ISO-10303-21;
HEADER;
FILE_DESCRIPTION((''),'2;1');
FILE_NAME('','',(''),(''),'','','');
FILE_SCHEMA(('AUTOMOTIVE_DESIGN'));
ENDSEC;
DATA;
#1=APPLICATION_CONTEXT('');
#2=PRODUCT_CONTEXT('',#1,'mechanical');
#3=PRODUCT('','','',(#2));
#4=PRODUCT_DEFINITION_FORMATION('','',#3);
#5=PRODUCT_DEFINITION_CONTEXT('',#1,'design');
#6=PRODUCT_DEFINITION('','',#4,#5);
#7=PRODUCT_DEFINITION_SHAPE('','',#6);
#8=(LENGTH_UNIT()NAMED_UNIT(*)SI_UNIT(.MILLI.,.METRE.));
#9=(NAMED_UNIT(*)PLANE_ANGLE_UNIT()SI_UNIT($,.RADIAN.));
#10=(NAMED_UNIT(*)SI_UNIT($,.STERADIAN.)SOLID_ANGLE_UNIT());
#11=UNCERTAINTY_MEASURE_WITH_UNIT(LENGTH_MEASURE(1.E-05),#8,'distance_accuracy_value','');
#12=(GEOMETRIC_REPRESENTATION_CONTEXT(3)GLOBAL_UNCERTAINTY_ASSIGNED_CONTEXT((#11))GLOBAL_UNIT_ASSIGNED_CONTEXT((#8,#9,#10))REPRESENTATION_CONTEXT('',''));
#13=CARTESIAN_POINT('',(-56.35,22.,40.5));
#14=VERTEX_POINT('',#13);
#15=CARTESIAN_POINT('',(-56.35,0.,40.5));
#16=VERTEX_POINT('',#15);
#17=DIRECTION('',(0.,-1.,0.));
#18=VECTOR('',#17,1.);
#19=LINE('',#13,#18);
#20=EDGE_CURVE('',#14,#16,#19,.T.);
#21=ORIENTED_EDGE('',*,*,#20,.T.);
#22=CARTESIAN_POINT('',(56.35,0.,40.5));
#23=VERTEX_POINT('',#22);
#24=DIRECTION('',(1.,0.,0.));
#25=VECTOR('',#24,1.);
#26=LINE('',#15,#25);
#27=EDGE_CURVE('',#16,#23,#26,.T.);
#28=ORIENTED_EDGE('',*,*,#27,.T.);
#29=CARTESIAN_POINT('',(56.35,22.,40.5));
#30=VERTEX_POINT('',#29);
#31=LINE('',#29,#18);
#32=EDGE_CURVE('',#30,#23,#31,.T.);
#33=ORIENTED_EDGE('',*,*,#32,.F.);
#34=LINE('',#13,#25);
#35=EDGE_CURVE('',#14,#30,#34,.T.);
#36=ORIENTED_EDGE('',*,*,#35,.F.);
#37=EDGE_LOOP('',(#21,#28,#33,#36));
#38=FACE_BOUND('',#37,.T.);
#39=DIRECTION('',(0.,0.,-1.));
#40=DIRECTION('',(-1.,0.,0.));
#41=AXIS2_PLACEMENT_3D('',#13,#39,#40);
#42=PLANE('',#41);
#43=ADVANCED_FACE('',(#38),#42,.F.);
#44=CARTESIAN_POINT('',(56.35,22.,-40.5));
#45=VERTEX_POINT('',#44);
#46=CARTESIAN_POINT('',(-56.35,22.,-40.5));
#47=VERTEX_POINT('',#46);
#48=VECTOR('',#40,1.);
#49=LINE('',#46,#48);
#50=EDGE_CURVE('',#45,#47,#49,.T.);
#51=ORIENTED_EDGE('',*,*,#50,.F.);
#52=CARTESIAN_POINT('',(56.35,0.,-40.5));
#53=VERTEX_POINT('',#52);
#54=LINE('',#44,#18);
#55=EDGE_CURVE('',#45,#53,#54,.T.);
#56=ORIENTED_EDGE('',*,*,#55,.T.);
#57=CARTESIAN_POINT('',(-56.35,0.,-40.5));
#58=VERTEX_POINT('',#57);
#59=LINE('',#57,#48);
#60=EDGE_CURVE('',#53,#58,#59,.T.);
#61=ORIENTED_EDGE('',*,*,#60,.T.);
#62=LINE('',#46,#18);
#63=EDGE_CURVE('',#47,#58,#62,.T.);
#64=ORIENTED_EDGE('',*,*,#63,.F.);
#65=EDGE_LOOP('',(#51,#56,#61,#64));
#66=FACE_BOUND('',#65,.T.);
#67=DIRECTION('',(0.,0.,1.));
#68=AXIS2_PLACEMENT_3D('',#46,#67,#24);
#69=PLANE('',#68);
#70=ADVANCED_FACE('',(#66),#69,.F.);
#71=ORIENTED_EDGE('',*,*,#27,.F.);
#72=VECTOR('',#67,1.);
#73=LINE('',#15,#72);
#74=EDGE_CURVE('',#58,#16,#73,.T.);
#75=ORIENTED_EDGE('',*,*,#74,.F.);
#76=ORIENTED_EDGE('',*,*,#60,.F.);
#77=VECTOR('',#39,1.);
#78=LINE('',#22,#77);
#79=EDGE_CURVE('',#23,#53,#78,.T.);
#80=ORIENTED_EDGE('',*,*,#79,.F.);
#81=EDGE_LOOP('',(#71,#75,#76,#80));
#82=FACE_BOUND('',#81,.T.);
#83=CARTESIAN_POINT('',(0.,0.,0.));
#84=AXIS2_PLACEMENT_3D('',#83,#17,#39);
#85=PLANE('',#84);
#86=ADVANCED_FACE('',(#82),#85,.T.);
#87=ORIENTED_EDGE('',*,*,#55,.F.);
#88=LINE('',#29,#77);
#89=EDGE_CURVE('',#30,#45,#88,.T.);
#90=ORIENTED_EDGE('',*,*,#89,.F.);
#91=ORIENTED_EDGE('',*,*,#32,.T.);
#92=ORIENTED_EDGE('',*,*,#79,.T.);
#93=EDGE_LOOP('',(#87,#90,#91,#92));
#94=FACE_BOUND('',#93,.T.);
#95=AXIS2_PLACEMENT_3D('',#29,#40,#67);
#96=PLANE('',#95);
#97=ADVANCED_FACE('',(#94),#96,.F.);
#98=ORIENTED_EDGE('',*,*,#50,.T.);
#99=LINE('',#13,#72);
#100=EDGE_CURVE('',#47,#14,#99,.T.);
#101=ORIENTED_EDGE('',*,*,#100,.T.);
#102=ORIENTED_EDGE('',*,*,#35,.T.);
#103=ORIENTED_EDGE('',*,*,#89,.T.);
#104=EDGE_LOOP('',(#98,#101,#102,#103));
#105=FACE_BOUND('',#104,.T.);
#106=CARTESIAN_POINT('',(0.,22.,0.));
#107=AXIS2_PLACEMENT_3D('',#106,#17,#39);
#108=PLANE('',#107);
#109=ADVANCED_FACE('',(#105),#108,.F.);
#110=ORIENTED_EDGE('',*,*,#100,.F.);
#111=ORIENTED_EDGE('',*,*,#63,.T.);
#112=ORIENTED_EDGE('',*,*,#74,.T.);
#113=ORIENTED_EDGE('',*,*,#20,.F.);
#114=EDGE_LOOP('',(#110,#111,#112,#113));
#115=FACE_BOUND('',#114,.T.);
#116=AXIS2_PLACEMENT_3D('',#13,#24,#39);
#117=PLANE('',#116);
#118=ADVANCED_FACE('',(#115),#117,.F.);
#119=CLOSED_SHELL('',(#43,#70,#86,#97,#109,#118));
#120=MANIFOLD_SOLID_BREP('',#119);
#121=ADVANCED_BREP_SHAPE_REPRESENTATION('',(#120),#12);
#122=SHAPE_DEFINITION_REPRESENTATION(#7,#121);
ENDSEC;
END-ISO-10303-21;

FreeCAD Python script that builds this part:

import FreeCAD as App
import Part
import Sketcher

V = App.Vector
Q = App.Units.Quantity

doc = App.newDocument("Part")
body = doc.addObject("PartDesign::Body", "Body")

# Sketch on XZ plane
sketch1 = doc.addObject("Sketcher::SketchObject", "Sketch")
body.addObject(sketch1)
sketch1.AttachmentSupport = (doc.XZ_Plane, [""])
sketch1.MapMode = "FlatFace"
sketch1.addGeometry([
    Part.LineSegment(V(-56.35, -40.5, 0), V(-56.35, 40.5, 0)),
    Part.LineSegment(V(-56.35, 40.5, 0), V(56.35, 40.5, 0)),
    Part.LineSegment(V(56.35, 40.5, 0), V(56.35, -40.5, 0)),
    Part.LineSegment(V(56.35, -40.5, 0), V(-56.35, -40.5, 0)),
], False)
sketch1.addConstraint([
    Sketcher.Constraint("Coincident", 0, 2, 1, 1),
    Sketcher.Constraint("Coincident", 1, 2, 2, 1),
    Sketcher.Constraint("Coincident", 2, 2, 3, 1),
    Sketcher.Constraint("Coincident", 3, 2, 0, 1),
    Sketcher.Constraint("Vertical", 0),
    Sketcher.Constraint("Horizontal", 1),
    Sketcher.Constraint("Vertical", 2),
    Sketcher.Constraint("Horizontal", 3),
    Sketcher.Constraint("Symmetric", 0, 2, 2, 2, -1, 1),
    Sketcher.Constraint("DistanceY", 0, 1, 0, 2, Q("81 mm")),
    Sketcher.Constraint("DistanceX", 1, 1, 1, 2, Q("112.7 mm")),
])
pad1 = doc.addObject("PartDesign::Pad", "Pad")
body.addObject(pad1)
pad1.Profile = sketch1
pad1.Length = 22
pad1.Reversed = True

doc.recompute()
